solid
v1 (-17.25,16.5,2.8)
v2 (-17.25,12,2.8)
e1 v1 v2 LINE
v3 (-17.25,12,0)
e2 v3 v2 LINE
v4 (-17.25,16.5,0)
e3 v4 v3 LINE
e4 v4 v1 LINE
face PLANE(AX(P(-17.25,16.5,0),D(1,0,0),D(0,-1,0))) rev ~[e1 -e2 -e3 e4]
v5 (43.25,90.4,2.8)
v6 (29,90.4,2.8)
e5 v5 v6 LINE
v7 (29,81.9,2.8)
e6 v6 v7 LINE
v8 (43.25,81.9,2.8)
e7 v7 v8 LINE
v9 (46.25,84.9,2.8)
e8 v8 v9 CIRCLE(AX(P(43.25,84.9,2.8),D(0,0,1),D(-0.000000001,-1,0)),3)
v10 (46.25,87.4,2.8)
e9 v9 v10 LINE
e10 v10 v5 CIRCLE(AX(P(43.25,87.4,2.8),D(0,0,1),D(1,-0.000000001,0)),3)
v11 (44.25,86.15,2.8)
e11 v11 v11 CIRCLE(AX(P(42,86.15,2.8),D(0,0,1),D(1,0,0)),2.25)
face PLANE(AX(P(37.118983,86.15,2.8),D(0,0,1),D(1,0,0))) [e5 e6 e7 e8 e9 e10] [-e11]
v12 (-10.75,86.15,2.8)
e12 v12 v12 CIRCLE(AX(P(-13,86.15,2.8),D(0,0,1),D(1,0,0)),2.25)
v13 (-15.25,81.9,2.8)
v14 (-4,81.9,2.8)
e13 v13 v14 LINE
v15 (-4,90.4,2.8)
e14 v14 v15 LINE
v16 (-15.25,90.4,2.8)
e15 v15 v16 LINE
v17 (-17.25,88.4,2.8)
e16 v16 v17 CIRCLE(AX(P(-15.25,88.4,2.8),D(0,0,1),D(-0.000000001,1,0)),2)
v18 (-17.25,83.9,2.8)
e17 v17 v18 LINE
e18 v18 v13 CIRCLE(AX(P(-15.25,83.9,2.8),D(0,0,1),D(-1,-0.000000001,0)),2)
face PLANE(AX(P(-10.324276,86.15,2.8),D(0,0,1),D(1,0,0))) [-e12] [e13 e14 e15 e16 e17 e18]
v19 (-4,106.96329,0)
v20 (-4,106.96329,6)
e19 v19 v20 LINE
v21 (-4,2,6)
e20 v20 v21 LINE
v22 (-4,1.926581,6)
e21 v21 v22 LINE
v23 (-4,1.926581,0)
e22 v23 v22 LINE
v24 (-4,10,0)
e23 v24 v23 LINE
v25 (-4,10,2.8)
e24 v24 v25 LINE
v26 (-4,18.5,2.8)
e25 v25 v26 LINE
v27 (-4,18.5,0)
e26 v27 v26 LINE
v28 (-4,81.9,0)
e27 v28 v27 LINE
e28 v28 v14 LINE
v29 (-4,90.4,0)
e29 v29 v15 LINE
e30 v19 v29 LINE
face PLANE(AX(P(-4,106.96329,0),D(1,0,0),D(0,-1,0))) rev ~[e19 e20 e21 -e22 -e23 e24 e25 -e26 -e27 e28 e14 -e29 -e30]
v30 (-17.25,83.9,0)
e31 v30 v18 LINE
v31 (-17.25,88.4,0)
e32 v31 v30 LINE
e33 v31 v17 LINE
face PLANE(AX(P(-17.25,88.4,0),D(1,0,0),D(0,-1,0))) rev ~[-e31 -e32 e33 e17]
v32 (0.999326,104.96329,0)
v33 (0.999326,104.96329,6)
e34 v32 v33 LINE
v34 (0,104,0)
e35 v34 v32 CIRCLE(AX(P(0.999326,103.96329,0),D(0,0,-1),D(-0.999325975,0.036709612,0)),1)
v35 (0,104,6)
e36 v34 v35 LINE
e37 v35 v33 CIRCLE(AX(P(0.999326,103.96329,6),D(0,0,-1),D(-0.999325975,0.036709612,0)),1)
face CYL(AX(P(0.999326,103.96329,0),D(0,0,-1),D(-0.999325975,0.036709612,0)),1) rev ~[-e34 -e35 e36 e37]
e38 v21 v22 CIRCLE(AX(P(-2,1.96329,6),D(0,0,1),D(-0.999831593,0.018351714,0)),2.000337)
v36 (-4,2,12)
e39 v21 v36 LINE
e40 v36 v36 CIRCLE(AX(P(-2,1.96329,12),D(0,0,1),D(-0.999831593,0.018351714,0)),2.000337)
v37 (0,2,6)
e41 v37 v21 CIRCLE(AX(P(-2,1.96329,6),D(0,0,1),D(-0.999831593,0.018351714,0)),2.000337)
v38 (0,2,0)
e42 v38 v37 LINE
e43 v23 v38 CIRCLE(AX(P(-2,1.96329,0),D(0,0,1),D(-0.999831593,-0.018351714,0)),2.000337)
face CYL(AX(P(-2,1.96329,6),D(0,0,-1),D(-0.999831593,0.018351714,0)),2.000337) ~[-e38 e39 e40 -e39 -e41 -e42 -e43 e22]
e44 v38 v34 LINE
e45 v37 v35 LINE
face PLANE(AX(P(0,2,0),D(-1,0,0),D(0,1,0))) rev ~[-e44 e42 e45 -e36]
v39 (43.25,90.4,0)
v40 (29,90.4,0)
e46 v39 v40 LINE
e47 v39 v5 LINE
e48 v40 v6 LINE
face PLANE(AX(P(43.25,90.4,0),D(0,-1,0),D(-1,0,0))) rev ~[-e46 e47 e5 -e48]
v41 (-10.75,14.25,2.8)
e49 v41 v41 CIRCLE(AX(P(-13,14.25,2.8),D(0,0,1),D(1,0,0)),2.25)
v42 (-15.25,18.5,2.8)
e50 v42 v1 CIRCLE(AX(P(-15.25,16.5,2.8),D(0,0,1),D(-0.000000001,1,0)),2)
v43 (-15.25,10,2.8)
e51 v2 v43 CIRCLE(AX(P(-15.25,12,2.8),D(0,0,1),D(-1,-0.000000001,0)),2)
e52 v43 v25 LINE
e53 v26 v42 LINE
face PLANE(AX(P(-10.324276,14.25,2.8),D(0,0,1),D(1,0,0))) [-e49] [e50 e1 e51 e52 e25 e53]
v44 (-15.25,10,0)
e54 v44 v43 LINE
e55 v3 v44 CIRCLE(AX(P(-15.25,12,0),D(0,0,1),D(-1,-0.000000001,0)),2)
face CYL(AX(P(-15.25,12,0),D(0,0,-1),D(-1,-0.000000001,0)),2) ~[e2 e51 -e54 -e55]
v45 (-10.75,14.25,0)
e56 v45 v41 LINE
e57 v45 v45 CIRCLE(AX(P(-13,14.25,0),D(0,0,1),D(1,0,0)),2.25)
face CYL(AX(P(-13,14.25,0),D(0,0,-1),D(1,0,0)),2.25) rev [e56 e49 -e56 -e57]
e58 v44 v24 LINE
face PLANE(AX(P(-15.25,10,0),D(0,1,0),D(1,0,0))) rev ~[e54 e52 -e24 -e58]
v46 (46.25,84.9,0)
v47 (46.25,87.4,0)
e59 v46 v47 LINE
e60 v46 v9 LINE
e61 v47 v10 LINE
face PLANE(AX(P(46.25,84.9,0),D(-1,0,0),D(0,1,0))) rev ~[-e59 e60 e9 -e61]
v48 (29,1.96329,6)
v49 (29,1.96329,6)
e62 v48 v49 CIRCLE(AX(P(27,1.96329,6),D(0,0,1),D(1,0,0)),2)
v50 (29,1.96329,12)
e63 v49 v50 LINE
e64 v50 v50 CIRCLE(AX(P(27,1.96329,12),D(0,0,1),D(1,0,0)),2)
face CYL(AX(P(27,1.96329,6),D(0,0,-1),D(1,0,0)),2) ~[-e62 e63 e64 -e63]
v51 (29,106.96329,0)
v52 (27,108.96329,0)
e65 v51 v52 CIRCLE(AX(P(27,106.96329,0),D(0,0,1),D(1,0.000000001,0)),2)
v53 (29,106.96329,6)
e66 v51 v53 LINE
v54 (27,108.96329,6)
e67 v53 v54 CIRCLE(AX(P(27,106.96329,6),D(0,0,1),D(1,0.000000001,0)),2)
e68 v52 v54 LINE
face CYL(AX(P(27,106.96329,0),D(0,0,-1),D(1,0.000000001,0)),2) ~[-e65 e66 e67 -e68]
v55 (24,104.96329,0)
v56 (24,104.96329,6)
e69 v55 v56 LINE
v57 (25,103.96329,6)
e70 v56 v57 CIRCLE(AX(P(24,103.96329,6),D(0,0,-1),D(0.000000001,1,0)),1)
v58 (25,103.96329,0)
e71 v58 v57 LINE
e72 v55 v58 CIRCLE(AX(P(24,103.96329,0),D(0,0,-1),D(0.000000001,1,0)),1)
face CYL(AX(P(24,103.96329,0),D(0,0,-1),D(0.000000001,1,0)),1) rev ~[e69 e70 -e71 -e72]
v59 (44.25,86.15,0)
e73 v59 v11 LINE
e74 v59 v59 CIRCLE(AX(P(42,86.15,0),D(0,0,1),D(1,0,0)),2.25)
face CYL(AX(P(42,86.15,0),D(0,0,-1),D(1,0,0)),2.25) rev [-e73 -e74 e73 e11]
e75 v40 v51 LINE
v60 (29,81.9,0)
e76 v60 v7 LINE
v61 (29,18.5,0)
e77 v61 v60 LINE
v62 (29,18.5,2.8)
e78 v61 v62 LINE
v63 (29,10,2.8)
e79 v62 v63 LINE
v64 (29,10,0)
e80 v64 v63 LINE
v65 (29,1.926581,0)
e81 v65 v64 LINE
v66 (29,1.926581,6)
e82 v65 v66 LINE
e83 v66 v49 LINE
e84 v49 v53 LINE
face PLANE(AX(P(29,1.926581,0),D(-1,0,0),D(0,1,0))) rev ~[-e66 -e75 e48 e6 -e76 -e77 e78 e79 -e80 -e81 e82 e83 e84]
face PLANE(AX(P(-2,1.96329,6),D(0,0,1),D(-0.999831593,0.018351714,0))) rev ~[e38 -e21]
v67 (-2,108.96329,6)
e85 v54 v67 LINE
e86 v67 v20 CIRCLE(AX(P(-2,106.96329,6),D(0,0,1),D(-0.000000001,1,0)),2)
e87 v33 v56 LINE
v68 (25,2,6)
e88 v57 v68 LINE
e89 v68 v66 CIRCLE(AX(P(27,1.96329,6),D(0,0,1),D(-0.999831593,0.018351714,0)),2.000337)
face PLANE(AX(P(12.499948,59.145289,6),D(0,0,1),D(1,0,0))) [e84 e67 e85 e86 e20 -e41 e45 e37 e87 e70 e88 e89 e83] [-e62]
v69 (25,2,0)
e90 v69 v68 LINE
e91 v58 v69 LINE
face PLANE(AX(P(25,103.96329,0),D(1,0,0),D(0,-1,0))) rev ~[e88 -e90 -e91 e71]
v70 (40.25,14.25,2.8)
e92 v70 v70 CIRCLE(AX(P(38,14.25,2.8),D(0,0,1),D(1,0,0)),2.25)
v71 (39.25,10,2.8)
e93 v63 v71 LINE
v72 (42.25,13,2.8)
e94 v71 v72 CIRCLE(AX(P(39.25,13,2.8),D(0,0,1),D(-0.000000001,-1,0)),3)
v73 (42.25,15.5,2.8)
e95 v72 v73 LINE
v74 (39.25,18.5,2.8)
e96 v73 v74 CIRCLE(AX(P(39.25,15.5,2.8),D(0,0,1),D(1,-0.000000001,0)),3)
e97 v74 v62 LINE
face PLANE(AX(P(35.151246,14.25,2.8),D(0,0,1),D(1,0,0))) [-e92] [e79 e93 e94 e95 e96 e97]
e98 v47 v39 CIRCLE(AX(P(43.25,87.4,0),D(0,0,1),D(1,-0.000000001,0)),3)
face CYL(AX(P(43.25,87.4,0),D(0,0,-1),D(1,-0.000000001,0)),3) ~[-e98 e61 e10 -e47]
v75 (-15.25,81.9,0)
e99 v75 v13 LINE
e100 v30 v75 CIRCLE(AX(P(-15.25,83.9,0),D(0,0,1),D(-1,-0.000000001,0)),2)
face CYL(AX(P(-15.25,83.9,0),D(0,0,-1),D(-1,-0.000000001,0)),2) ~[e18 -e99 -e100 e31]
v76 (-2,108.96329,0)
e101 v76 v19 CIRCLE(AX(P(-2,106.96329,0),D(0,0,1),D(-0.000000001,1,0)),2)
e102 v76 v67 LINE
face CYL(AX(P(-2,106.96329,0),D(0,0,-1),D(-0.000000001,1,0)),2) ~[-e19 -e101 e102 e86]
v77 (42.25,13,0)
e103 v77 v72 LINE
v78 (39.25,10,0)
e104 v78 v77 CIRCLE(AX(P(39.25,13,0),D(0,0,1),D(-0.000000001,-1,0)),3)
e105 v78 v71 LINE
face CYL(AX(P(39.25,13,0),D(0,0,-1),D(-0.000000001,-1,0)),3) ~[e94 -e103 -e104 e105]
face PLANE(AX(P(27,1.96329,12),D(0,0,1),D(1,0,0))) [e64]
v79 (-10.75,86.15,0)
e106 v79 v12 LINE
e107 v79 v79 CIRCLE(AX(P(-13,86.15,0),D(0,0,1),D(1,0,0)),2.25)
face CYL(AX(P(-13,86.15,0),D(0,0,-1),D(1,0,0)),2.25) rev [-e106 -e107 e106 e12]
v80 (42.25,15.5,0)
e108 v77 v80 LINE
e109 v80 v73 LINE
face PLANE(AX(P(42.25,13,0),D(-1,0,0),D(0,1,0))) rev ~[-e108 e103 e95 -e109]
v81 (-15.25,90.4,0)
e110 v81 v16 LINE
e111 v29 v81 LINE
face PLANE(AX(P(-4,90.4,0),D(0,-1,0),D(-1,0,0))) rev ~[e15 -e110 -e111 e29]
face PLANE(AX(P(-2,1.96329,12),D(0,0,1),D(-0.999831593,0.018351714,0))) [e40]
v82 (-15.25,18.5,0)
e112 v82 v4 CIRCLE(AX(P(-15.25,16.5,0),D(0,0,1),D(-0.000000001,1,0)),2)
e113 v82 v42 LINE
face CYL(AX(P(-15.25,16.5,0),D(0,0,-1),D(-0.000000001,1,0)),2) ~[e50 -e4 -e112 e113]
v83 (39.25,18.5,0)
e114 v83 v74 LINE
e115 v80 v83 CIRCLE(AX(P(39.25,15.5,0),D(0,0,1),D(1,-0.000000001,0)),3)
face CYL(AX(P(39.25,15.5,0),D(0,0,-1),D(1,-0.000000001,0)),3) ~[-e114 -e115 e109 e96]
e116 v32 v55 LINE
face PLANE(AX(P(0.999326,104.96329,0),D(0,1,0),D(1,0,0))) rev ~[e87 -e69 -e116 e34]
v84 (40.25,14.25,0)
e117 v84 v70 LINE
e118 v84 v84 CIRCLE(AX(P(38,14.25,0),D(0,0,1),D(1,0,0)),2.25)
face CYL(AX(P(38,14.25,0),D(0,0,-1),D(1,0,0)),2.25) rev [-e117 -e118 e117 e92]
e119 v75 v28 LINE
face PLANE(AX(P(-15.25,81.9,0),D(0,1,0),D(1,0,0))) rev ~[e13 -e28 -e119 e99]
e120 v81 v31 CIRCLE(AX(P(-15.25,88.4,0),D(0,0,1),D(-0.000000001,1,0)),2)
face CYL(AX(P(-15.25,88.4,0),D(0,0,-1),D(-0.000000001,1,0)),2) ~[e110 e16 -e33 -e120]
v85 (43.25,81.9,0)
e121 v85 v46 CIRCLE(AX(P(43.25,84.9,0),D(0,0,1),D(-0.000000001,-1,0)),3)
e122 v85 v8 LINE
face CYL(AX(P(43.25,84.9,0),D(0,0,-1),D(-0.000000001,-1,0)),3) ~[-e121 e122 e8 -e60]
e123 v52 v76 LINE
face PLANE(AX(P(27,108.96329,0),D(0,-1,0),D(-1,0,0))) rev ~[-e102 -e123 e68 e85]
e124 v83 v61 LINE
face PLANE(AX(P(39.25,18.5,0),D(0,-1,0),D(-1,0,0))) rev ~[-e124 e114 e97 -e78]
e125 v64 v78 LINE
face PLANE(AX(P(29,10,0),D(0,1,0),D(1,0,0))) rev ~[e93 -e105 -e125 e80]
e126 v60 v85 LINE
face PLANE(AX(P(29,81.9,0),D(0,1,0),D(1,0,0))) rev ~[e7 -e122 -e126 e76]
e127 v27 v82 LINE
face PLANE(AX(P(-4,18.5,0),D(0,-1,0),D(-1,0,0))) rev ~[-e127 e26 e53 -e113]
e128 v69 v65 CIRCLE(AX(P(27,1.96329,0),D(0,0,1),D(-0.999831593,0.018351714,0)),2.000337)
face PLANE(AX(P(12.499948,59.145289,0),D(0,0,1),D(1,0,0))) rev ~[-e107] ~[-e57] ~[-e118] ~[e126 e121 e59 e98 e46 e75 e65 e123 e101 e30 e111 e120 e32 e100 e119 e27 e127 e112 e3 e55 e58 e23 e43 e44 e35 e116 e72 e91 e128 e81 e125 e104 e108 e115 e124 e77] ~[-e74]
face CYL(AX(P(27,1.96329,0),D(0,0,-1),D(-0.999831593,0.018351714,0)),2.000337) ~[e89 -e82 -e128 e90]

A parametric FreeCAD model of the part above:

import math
import FreeCAD as App
import Part
import Sketcher

V = App.Vector
Q = App.Units.Quantity

doc = App.newDocument("Part")
body = doc.addObject("PartDesign::Body", "Body")

sketch1 = body.newObject("Sketcher::SketchObject", "Sketch")
sketch1.AttachmentSupport = (doc.getObject("XY_Plane"), [""])
sketch1.MapMode = "FlatFace"
sketch1.addGeometry([
    Part.LineSegment(V(-15.2, 81.9, 0), V(-4, 81.9, 0)),
    Part.LineSegment(V(-4, 81.9, 0), V(-4, 90.4, 0)),
    Part.LineSegment(V(-4, 90.4, 0), V(-15.2, 90.4, 0)),
    Part.ArcOfCircle(Part.Circle(V(-15.2, 88.4, 0), V(0, 0, 1), 2), math.radians(90), math.radians(180)),
    Part.LineSegment(V(-17.2, 88.4, 0), V(-17.2, 83.9, 0)),
    Part.ArcOfCircle(Part.Circle(V(-15.2, 83.9, 0), V(0, 0, 1), 2), math.radians(-180), math.radians(-90)),
    Part.Circle(V(-13, 86.2, 0), V(0, 0, 1), 2.2),
], False)
sketch1.addConstraint([
    Sketcher.Constraint("Coincident", 0, 2, 1, 1),
    Sketcher.Constraint("Coincident", 1, 2, 2, 1),
    Sketcher.Constraint("Tangent", 2, 2, 3, 1),
    Sketcher.Constraint("Tangent", 3, 2, 4, 1),
    Sketcher.Constraint("Tangent", 4, 2, 5, 1),
    Sketcher.Constraint("Tangent", 5, 2, 0, 1),
    Sketcher.Constraint("Horizontal", 0),
    Sketcher.Constraint("Vertical", 1),
    Sketcher.Constraint("Horizontal", 2),
    Sketcher.Constraint("Vertical", 4),
    Sketcher.Constraint("Equal", 3, 5),
    Sketcher.Constraint("Radius", 3, Q("2 mm")),
    Sketcher.Constraint("Diameter", 6, Q("4.5 mm")),
    Sketcher.Constraint("DistanceY", 1, 1, 1, 2, Q("8.5 mm")),
    Sketcher.Constraint("DistanceX", 6, 3, -1, 1, Q("13 mm")),
    Sketcher.Constraint("DistanceX", 0, 2, -1, 1, Q("4 mm")),
    Sketcher.Constraint("DistanceX", 0, 1, 0, 2, Q("11.25 mm")),
    Sketcher.Constraint("DistanceY", -1, 1, 3, 3, Q("88.4 mm")),
    Sketcher.Constraint("DistanceY", -1, 1, 6, 3, Q("86.15 mm")),
])
pad1 = body.newObject("PartDesign::Pad", "Pad")
pad1.Profile = sketch1
pad1.Length = 2.8
body2 = doc.addObject("PartDesign::Body", "Body001")

sketch2 = body2.newObject("Sketcher::SketchObject", "Sketch001")
sketch2.AttachmentSupport = (doc.getObject("XY_Plane001"), [""])
sketch2.MapMode = "FlatFace"
sketch2.addGeometry([
    Part.LineSegment(V(43.2, 90.4, 0), V(29, 90.4, 0)),
    Part.LineSegment(V(29, 90.4, 0), V(29, 81.9, 0)),
    Part.LineSegment(V(29, 81.9, 0), V(43.2, 81.9, 0)),
    Part.ArcOfCircle(Part.Circle(V(43.3, 84.9, 0), V(0, 0, 1), 3), math.radians(-90), math.radians(0)),
    Part.LineSegment(V(46.2, 84.9, 0), V(46.2, 87.4, 0)),
    Part.ArcOfCircle(Part.Circle(V(43.3, 87.4, 0), V(0, 0, 1), 3), math.radians(0), math.radians(90)),
    Part.Circle(V(42, 86.2, 0), V(0, 0, 1), 2.2),
], False)
sketch2.addConstraint([
    Sketcher.Constraint("Coincident", 0, 2, 1, 1),
    Sketcher.Constraint("Coincident", 1, 2, 2, 1),
    Sketcher.Constraint("Tangent", 2, 2, 3, 1),
    Sketcher.Constraint("Tangent", 3, 2, 4, 1),
    Sketcher.Constraint("Tangent", 4, 2, 5, 1),
    Sketcher.Constraint("Tangent", 5, 2, 0, 1),
    Sketcher.Constraint("Horizontal", 0),
    Sketcher.Constraint("Vertical", 1),
    Sketcher.Constraint("Horizontal", 2),
    Sketcher.Constraint("Vertical", 4),
    Sketcher.Constraint("Equal", 3, 5),
    Sketcher.Constraint("Radius", 3, Q("3 mm")),
    Sketcher.Constraint("Diameter", 6, Q("4.5 mm")),
    Sketcher.Constraint("DistanceY", 1, 2, 1, 1, Q("8.5 mm")),
    Sketcher.Constraint("DistanceX", -1, 1, 6, 3, Q("42 mm")),
    Sketcher.Constraint("DistanceX", -1, 1, 0, 2, Q("29 mm")),
    Sketcher.Constraint("DistanceX", 0, 2, 0, 1, Q("14.25 mm")),
    Sketcher.Constraint("DistanceY", -1, 1, 3, 3, Q("84.9 mm")),
    Sketcher.Constraint("DistanceY", -1, 1, 6, 3, Q("86.15 mm")),
])
pad2 = body2.newObject("PartDesign::Pad", "Pad001")
pad2.Profile = sketch2
pad2.Length = 2.8
body3 = doc.addObject("PartDesign::Body", "Body002")

sketch3 = body3.newObject("Sketcher::SketchObject", "Sketch002")
sketch3.AttachmentSupport = (doc.getObject("XY_Plane002"), [""])
sketch3.MapMode = "FlatFace"
sketch3.addGeometry([
    Part.LineSegment(V(29, 18.5, 0), V(29, 10, 0)),
    Part.LineSegment(V(29, 10, 0), V(39.2, 10, 0)),
    Part.ArcOfCircle(Part.Circle(V(39.3, 13, 0), V(0, 0, 1), 3), math.radians(-90), math.radians(0)),
    Part.LineSegment(V(42.2, 13, 0), V(42.2, 15.5, 0)),
    Part.ArcOfCircle(Part.Circle(V(39.3, 15.5, 0), V(0, 0, 1), 3), math.radians(0), math.radians(90)),
    Part.LineSegment(V(39.2, 18.5, 0), V(29, 18.5, 0)),
    Part.Circle(V(38, 14.2, 0), V(0, 0, 1), 2.2),
], False)
sketch3.addConstraint([
    Sketcher.Constraint("Coincident", 0, 2, 1, 1),
    Sketcher.Constraint("Tangent", 1, 2, 2, 1),
    Sketcher.Constraint("Tangent", 2, 2, 3, 1),
    Sketcher.Constraint("Tangent", 3, 2, 4, 1),
    Sketcher.Constraint("Tangent", 4, 2, 5, 1),
    Sketcher.Constraint("Coincident", 5, 2, 0, 1),
    Sketcher.Constraint("Vertical", 0),
    Sketcher.Constraint("Horizontal", 1),
    Sketcher.Constraint("Vertical", 3),
    Sketcher.Constraint("Horizontal", 5),
    Sketcher.Constraint("Equal", 2, 4),
    Sketcher.Constraint("Radius", 2, Q("3 mm")),
    Sketcher.Constraint("Diameter", 6, Q("4.5 mm")),
    Sketcher.Constraint("DistanceY", 0, 2, 0, 1, Q("8.5 mm")),
    Sketcher.Constraint("DistanceY", -1, 1, 2, 3, Q("13 mm")),
    Sketcher.Constraint("DistanceX", -1, 1, 6, 3, Q("38 mm")),
    Sketcher.Constraint("DistanceX", -1, 1, 0, 2, Q("29 mm")),
    Sketcher.Constraint("DistanceX", 1, 1, 1, 2, Q("10.25 mm")),
    Sketcher.Constraint("DistanceY", -1, 1, 6, 3, Q("14.25 mm")),
])
pad3 = body3.newObject("PartDesign::Pad", "Pad002")
pad3.Profile = sketch3
pad3.Length = 2.8
body4 = doc.addObject("PartDesign::Body", "Body003")

sketch4 = body4.newObject("Sketcher::SketchObject", "Sketch003")
sketch4.AttachmentSupport = (doc.getObject("XY_Plane003"), [""])
sketch4.MapMode = "FlatFace"
sketch4.addGeometry([
    Part.LineSegment(V(-15.2, 10, 0), V(-4, 10, 0)),
    Part.LineSegment(V(-4, 10, 0), V(-4, 18.5, 0)),
    Part.LineSegment(V(-4, 18.5, 0), V(-15.2, 18.5, 0)),
    Part.ArcOfCircle(Part.Circle(V(-15.2, 16.5, 0), V(0, 0, 1), 2), math.radians(90), math.radians(180)),
    Part.LineSegment(V(-17.2, 16.5, 0), V(-17.2, 12, 0)),
    Part.ArcOfCircle(Part.Circle(V(-15.2, 12, 0), V(0, 0, 1), 2), math.radians(-180), math.radians(-90)),
    Part.Circle(V(-13, 14.2, 0), V(0, 0, 1), 2.2),
], False)
sketch4.addConstraint([
    Sketcher.Constraint("Coincident", 0, 2, 1, 1),
    Sketcher.Constraint("Coincident", 1, 2, 2, 1),
    Sketcher.Constraint("Tangent", 2, 2, 3, 1),
    Sketcher.Constraint("Tangent", 3, 2, 4, 1),
    Sketcher.Constraint("Tangent", 4, 2, 5, 1),
    Sketcher.Constraint("Tangent", 5, 2, 0, 1),
    Sketcher.Constraint("Horizontal", 0),
    Sketcher.Constraint("Vertical", 1),
    Sketcher.Constraint("Horizontal", 2),
    Sketcher.Constraint("Vertical", 4),
    Sketcher.Constraint("Equal", 3, 5),
    Sketcher.Constraint("Radius", 3, Q("2 mm")),
    Sketcher.Constraint("Diameter", 6, Q("4.5 mm")),
    Sketcher.Constraint("DistanceY", 1, 1, 1, 2, Q("8.5 mm")),
    Sketcher.Constraint("DistanceY", -1, 1, 5, 3, Q("12 mm")),
    Sketcher.Constraint("DistanceX", 6, 3, -1, 1, Q("13 mm")),
    Sketcher.Constraint("DistanceX", 0, 2, -1, 1, Q("4 mm")),
    Sketcher.Constraint("DistanceX", 0, 1, 0, 2, Q("11.25 mm")),
    Sketcher.Constraint("DistanceY", -1, 1, 6, 3, Q("14.25 mm")),
])
pad4 = body4.newObject("PartDesign::Pad", "Pad003")
pad4.Profile = sketch4
pad4.Length = 2.8
body.AllowCompound = True
doc.recompute()

boolean = body.newObject("PartDesign::Boolean", "Boolean")
boolean.Type = "Fuse"
boolean.addObjects([body2])
doc.recompute()

boolean2 = body.newObject("PartDesign::Boolean", "Boolean001")
boolean2.Type = "Fuse"
boolean2.addObjects([body3])
doc.recompute()

boolean3 = body.newObject("PartDesign::Boolean", "Boolean002")
boolean3.Type = "Fuse"
boolean3.addObjects([body4])

sketch5 = body.newObject("Sketcher::SketchObject", "Sketch004")
sketch5.AttachmentSupport = (doc.getObject("XY_Plane"), [""])
sketch5.MapMode = "FlatFace"
sketch5.addGeometry([
    Part.LineSegment(V(25, 104, 0), V(25, 2, 0)),
    Part.ArcOfCircle(Part.Circle(V(27, 2, 0), V(0, 0, 1), 2), math.radians(179), math.radians(359)),
    Part.LineSegment(V(29, 1.9, 0), V(29, 107, 0)),
    Part.ArcOfCircle(Part.Circle(V(27, 107, 0), V(0, 0, 1), 2), math.radians(0), math.radians(90)),
    Part.LineSegment(V(27, 109, 0), V(-2, 109, 0)),
    Part.ArcOfCircle(Part.Circle(V(-2, 107, 0), V(0, 0, 1), 2), math.radians(90), math.radians(180)),
    Part.LineSegment(V(-4, 107, 0), V(-4, 1.9, 0)),
    Part.ArcOfCircle(Part.Circle(V(-2, 2, 0), V(0, 0, 1), 2), math.radians(-179), math.radians(1)),
    Part.LineSegment(V(0, 2, 0), V(0, 104, 0)),
    Part.ArcOfCircle(Part.Circle(V(1, 104, 0), V(0, 0, 1), 1), math.radians(90), math.radians(178)),
    Part.LineSegment(V(1, 105, 0), V(24, 105, 0)),
    Part.ArcOfCircle(Part.Circle(V(24, 104, 0), V(0, 0, 1), 1), math.radians(0), math.radians(90)),
], False)
sketch5.addConstraint([
    Sketcher.Constraint("Coincident", 0, 2, 1, 1),
    Sketcher.Constraint("Coincident", 1, 2, 2, 1),
    Sketcher.Constraint("Tangent", 2, 2, 3, 1),
    Sketcher.Constraint("Tangent", 3, 2, 4, 1),
    Sketcher.Constraint("Tangent", 4, 2, 5, 1),
    Sketcher.Constraint("Tangent", 5, 2, 6, 1),
    Sketcher.Constraint("Coincident", 6, 2, 7, 1),
    Sketcher.Constraint("Coincident", 7, 2, 8, 1),
    Sketcher.Constraint("Coincident", 8, 2, 9, 2),
    Sketcher.Constraint("Tangent", 9, 1, 10, 1),
    Sketcher.Constraint("Tangent", 10, 2, 11, 2),
    Sketcher.Constraint("Tangent", 11, 1, 0, 1),
    Sketcher.Constraint("Vertical", 0),
    Sketcher.Constraint("Vertical", 2),
    Sketcher.Constraint("Horizontal", 4),
    Sketcher.Constraint("Vertical", 6),
    Sketcher.Constraint("Vertical", 8),
    Sketcher.Constraint("Horizontal", 10),
    Sketcher.Constraint("Equal", 3, 5),
    Sketcher.Constraint("Equal", 1, 7),
    Sketcher.Constraint("Equal", 9, 11),
    Sketcher.Constraint("PointOnObject", 7, 2, -2),
    Sketcher.Constraint("Horizontal", 1, 3, 7, 3),
    Sketcher.Constraint("Horizontal", 1, 2, 6, 2),
    Sketcher.Constraint("Horizontal", 0, 2, 7, 2),
    Sketcher.Constraint("Vertical", 1, 3, 3, 3),
    Sketcher.Constraint("Radius", 3, Q("2 mm")),
    Sketcher.Constraint("Radius", 9, Q("1 mm")),
    Sketcher.Constraint("DistanceX", 4, 2, 4, 1, Q("29 mm")),
    Sketcher.Constraint("DistanceY", 8, 1, 8, 2, Q("102 mm")),
    Sketcher.Constraint("DistanceX", -1, 1, 1, 3, Q("27 mm")),
    Sketcher.Constraint("DistanceY", -1, 1, 0, 2, Q("2 mm")),
    Sketcher.Constraint("DistanceY", 1, 3, 3, 3, Q("105 mm")),
    Sketcher.Constraint("DistanceY", 9, 3, 5, 3, Q("3 mm")),
    Sketcher.Constraint("Radius", 1, Q("2.000337 mm")),
])
pad5 = body.newObject("PartDesign::Pad", "Pad004")
pad5.Profile = sketch5
pad5.Length = 6

sketch6 = body.newObject("Sketcher::SketchObject", "Sketch005")
sketch6.AttachmentSupport = (doc.getObject("XY_Plane"), [""])
sketch6.MapMode = "FlatFace"
sketch6.AttachmentOffset = App.Placement(V(0, 0, 6), App.Rotation())
sketch6.addGeometry([
    Part.Circle(V(-2, 2, 0), V(0, 0, 1), 2),
    Part.Circle(V(27, 2, 0), V(0, 0, 1), 2),
], False)
sketch6.addConstraint([
    Sketcher.Constraint("Horizontal", 0, 3, 1, 3),
    Sketcher.Constraint("Diameter", 1, Q("4 mm")),
    Sketcher.Constraint("DistanceX", 0, 3, -1, 1, Q("2 mm")),
    Sketcher.Constraint("DistanceX", -1, 1, 1, 3, Q("27 mm")),
    Sketcher.Constraint("Diameter", 0, Q("4.000674 mm")),
    Sketcher.Constraint("DistanceY", -1, 1, 0, 3, Q("1.96329 mm")),
])
pad6 = body.newObject("PartDesign::Pad", "Pad005")
pad6.Profile = sketch6
pad6.Length = 6

doc.recompute()
